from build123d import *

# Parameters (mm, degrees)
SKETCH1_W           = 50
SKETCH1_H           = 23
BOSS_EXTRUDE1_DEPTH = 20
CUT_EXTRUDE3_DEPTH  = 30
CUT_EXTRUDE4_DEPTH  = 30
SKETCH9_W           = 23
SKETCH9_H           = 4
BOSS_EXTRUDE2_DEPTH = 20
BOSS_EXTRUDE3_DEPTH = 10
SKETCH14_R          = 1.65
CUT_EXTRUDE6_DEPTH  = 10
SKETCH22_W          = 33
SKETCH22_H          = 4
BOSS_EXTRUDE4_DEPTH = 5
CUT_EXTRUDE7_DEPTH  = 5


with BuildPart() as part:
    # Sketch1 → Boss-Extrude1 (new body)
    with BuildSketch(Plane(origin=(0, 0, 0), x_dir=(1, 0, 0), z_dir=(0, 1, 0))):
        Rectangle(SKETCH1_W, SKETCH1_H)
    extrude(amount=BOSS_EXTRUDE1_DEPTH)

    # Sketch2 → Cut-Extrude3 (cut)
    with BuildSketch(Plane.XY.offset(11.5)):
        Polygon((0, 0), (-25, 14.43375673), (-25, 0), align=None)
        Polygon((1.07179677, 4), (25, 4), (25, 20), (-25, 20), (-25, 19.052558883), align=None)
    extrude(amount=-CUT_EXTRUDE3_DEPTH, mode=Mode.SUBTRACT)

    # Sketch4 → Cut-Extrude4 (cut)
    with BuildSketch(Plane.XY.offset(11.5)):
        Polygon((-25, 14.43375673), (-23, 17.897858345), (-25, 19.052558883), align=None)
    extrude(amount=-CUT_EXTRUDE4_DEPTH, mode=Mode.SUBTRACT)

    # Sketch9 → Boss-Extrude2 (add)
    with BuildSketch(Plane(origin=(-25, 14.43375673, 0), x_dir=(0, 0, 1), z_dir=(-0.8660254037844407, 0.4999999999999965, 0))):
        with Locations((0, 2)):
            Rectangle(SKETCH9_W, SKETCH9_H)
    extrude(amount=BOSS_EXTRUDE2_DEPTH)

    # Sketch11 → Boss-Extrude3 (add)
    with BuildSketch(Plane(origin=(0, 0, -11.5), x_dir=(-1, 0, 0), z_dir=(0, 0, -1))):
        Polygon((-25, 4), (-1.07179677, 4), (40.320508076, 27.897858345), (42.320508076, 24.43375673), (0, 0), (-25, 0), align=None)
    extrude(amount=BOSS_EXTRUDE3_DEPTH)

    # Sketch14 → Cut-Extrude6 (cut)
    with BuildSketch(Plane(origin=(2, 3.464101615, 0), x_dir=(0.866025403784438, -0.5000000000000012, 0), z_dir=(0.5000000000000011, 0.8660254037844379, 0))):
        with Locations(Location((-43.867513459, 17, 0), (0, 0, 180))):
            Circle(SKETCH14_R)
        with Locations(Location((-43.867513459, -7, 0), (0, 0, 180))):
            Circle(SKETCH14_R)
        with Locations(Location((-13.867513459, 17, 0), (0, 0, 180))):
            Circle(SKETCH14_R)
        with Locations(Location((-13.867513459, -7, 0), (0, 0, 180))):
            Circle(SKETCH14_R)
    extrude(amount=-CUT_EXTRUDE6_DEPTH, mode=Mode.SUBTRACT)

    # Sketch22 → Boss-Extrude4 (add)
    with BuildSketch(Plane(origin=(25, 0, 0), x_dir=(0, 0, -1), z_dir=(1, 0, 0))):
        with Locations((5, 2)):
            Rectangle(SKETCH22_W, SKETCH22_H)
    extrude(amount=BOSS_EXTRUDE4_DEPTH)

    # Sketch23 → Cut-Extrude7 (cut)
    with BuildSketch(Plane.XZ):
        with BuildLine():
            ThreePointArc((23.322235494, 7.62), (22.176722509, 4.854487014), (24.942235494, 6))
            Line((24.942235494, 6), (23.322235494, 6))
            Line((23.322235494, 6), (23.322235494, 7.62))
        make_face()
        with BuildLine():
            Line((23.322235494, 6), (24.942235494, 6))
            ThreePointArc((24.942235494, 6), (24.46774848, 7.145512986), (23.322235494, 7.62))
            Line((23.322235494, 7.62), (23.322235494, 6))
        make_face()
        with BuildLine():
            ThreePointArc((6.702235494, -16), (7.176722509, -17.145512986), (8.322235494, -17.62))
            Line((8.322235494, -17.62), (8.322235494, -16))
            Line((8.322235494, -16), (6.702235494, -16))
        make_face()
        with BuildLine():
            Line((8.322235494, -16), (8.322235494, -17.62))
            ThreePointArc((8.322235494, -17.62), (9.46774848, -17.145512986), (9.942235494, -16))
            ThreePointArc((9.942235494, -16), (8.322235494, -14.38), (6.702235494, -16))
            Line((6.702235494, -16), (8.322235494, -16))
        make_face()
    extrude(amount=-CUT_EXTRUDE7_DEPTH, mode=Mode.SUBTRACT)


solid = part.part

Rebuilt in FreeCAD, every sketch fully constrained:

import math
import FreeCAD as App
import Part
import Sketcher

V = App.Vector
Q = App.Units.Quantity


def add_polygon(sketch, points):
    """Adds a closed chain of lines whose ends are joined by coincident constraints."""
    first, n = sketch.GeometryCount, len(points)
    for a, b in zip(points, points[1:] + points[:1]):
        sketch.addGeometry(Part.LineSegment(App.Vector(*a, 0), App.Vector(*b, 0)), False)
    for i in range(n):
        sketch.addConstraint(Sketcher.Constraint("Coincident", first + i, 2, first + (i + 1) % n, 1))

doc = App.newDocument("Part")
body = doc.addObject("PartDesign::Body", "Body")

# Sketch on XZ plane
sketch1 = body.newObject("Sketcher::SketchObject", "Sketch")
sketch1.AttachmentSupport = (doc.getObject("XZ_Plane"), [""])
sketch1.MapMode = "FlatFace"
add_polygon(sketch1, [(-25, -12), (-25, 12), (25, 12), (25, -12)])  # lines 0-3
sketch1.addConstraint(Sketcher.Constraint("Vertical", 0))
sketch1.addConstraint(Sketcher.Constraint("Horizontal", 1))
sketch1.addConstraint(Sketcher.Constraint("Vertical", 2))
sketch1.addConstraint(Sketcher.Constraint("Horizontal", 3))
sketch1.addConstraint(Sketcher.Constraint("Symmetric", 0, 2, 2, 2, -1, 1))
sketch1.addConstraint(Sketcher.Constraint("DistanceX", 1, 1, 1, 2, Q("50 mm")))
sketch1.addConstraint(Sketcher.Constraint("DistanceY", 0, 1, 0, 2, Q("23 mm")))
pad1 = body.newObject("PartDesign::Pad", "Pad")
pad1.Profile = sketch1
pad1.Length = 20
pad1.Reversed = True

# Sketch on XY plane
sketch2 = body.newObject("Sketcher::SketchObject", "Sketch001")
sketch2.AttachmentSupport = (doc.getObject("XY_Plane"), [""])
sketch2.MapMode = "FlatFace"
sketch2.AttachmentOffset = App.Placement(V(0, 0, 11.5), App.Rotation())
add_polygon(sketch2, [(0, 0), (-25, 14.4), (-25, 0)])  # lines 0-2
add_polygon(sketch2, [(1.1, 4), (25, 4), (25, 20), (-25, 20), (-25, 19.1)])  # lines 3-7
sketch2.addConstraint(Sketcher.Constraint("Vertical", 1))
sketch2.addConstraint(Sketcher.Constraint("Horizontal", 2))
sketch2.addConstraint(Sketcher.Constraint("Horizontal", 3))
sketch2.addConstraint(Sketcher.Constraint("Vertical", 4))
sketch2.addConstraint(Sketcher.Constraint("Horizontal", 5))
sketch2.addConstraint(Sketcher.Constraint("Vertical", 6))
sketch2.addConstraint(Sketcher.Constraint("Coincident", 2, 2, -1, 1))
sketch2.addConstraint(Sketcher.Constraint("Parallel", 0, 7))
sketch2.addConstraint(Sketcher.Constraint("Vertical", 1, 2, 5, 2))
sketch2.addConstraint(Sketcher.Constraint("DistanceX", 2, 1, 2, 2, Q("25 mm")))
sketch2.addConstraint(Sketcher.Constraint("DistanceX", 5, 2, 5, 1, Q("50 mm")))
sketch2.addConstraint(Sketcher.Constraint("DistanceY", 4, 1, 4, 2, Q("16 mm")))
sketch2.addConstraint(Sketcher.Constraint("Angle", 0, Q("150 deg")))
sketch2.addConstraint(Sketcher.Constraint("DistanceY", -1, 1, 3, 2, Q("4 mm")))
sketch2.addConstraint(Sketcher.Constraint("DistanceY", 6, 2, 6, 1, Q("0.947441 mm")))
pocket1 = body.newObject("PartDesign::Pocket", "Pocket")
pocket1.Profile = sketch2
pocket1.Length = 30

# Sketch on XY plane
sketch3 = body.newObject("Sketcher::SketchObject", "Sketch002")
sketch3.AttachmentSupport = (doc.getObject("XY_Plane"), [""])
sketch3.MapMode = "FlatFace"
sketch3.AttachmentOffset = App.Placement(V(0, 0, 11.5), App.Rotation())
add_polygon(sketch3, [(-25, 14.4), (-23, 17.9), (-25, 19.1)])  # lines 0-2
sketch3.addConstraint(Sketcher.Constraint("Vertical", 2))
sketch3.addConstraint(Sketcher.Constraint("Perpendicular", 0, 1))
sketch3.addConstraint(Sketcher.Constraint("Angle", 0, Q("60 deg")))
sketch3.addConstraint(Sketcher.Constraint("Distance", 0, Q("4 mm")))
sketch3.addConstraint(Sketcher.Constraint("DistanceX", 0, 2, -1, 1, Q("23 mm")))
sketch3.addConstraint(Sketcher.Constraint("DistanceY", -1, 1, 0, 2, Q("17.897858 mm")))
pocket2 = body.newObject("PartDesign::Pocket", "Pocket001")
pocket2.Profile = sketch3
pocket2.Length = 30

# Sketch on an angled plane
sketch4 = body.newObject("Sketcher::SketchObject", "Sketch003")
sketch4.Placement = App.Placement(V(-25, 14.433757, 0), App.Rotation(V(0, 0, 1), V(0.5, 0.866025404, 0), V(-0.866025404, 0.5, 0), "ZXY"))
add_polygon(sketch4, [(-11.5, 4), (-11.5, 0), (11.5, 0), (11.5, 4)])  # lines 0-3
sketch4.addConstraint(Sketcher.Constraint("Vertical", 0))
sketch4.addConstraint(Sketcher.Constraint("Horizontal", 1))
sketch4.addConstraint(Sketcher.Constraint("Vertical", 2))
sketch4.addConstraint(Sketcher.Constraint("Horizontal", 3))
sketch4.addConstraint(Sketcher.Constraint("Symmetric", 0, 2, 1, 2, -1, 1))
sketch4.addConstraint(Sketcher.Constraint("DistanceX", 1, 1, 1, 2, Q("23 mm")))
sketch4.addConstraint(Sketcher.Constraint("DistanceY", 0, 2, 0, 1, Q("4 mm")))
pad2 = body.newObject("PartDesign::Pad", "Pad001")
pad2.Profile = sketch4
pad2.Length = 20

# Sketch on XY plane
sketch5 = body.newObject("Sketcher::SketchObject", "Sketch004")
sketch5.AttachmentSupport = (doc.getObject("XY_Plane"), [""])
sketch5.MapMode = "FlatFace"
sketch5.AttachmentOffset = App.Placement(V(0, 0, -11.5), App.Rotation())
add_polygon(sketch5, [(1.1, 4), (25, 4), (25, 0), (0, 0), (-42.3, 24.4), (-40.3, 27.9)])  # lines 0-5
sketch5.addConstraint(Sketcher.Constraint("Horizontal", 0))
sketch5.addConstraint(Sketcher.Constraint("Vertical", 1))
sketch5.addConstraint(Sketcher.Constraint("Horizontal", 2))
sketch5.addConstraint(Sketcher.Constraint("Coincident", 2, 2, -1, 1))
sketch5.addConstraint(Sketcher.Constraint("Perpendicular", 3, 4))
sketch5.addConstraint(Sketcher.Constraint("Perpendicular", 4, 5))
sketch5.addConstraint(Sketcher.Constraint("DistanceX", 2, 2, 2, 1, Q("25 mm")))
sketch5.addConstraint(Sketcher.Constraint("DistanceY", 1, 2, 1, 1, Q("4 mm")))
sketch5.addConstraint(Sketcher.Constraint("Angle", 3, Q("150 deg")))
sketch5.addConstraint(Sketcher.Constraint("Distance", 4, Q("4 mm")))
sketch5.addConstraint(Sketcher.Constraint("DistanceX", 3, 2, -1, 1, Q("42.320508 mm")))
pad3 = body.newObject("PartDesign::Pad", "Pad002")
pad3.Profile = sketch5
pad3.Length = 10
pad3.Reversed = True

# Sketch on an angled plane
sketch6 = body.newObject("Sketcher::SketchObject", "Sketch005")
sketch6.Placement = App.Placement(V(2, 3.464102, 0), App.Rotation(V(0.866025404, -0.5, 0), V(0, 0, -1), V(0.5, 0.866025404, 0), "ZXY"))
sketch6.addGeometry(Part.Circle(V(-43.9, 17, 0), V(0, 0, 1), 1.6), False)
sketch6.addGeometry(Part.Circle(V(-43.9, -7, 0), V(0, 0, 1), 1.6), False)
sketch6.addGeometry(Part.Circle(V(-13.9, 17, 0), V(0, 0, 1), 1.6), False)
sketch6.addGeometry(Part.Circle(V(-13.9, -7, 0), V(0, 0, 1), 1.6), False)
sketch6.addConstraint(Sketcher.Constraint("Equal", 0, 1))
sketch6.addConstraint(Sketcher.Constraint("Equal", 1, 2))
sketch6.addConstraint(Sketcher.Constraint("Equal", 2, 3))
sketch6.addConstraint(Sketcher.Constraint("Horizontal", 0, 3, 2, 3))
sketch6.addConstraint(Sketcher.Constraint("Horizontal", 1, 3, 3, 3))
sketch6.addConstraint(Sketcher.Constraint("Vertical", 0, 3, 1, 3))
sketch6.addConstraint(Sketcher.Constraint("Vertical", 2, 3, 3, 3))
sketch6.addConstraint(Sketcher.Constraint("Diameter", 0, Q("3.3 mm")))
sketch6.addConstraint(Sketcher.Constraint("DistanceY", -1, 1, 0, 3, Q("17 mm")))
sketch6.addConstraint(Sketcher.Constraint("DistanceY", 1, 3, -1, 1, Q("7 mm")))
sketch6.addConstraint(Sketcher.Constraint("DistanceX", 0, 3, 2, 3, Q("30 mm")))
sketch6.addConstraint(Sketcher.Constraint("DistanceX", 0, 3, -1, 1, Q("43.867513 mm")))
pocket3 = body.newObject("PartDesign::Pocket", "Pocket002")
pocket3.Profile = sketch6
pocket3.Length = 10

# Sketch on YZ plane
sketch7 = body.newObject("Sketcher::SketchObject", "Sketch006")
sketch7.AttachmentSupport = (doc.getObject("YZ_Plane"), [""])
sketch7.MapMode = "FlatFace"
sketch7.AttachmentOffset = App.Placement(V(0, 0, 25), App.Rotation())
add_polygon(sketch7, [(4, 11.5), (0, 11.5), (0, -21.5), (4, -21.5)])  # lines 0-3
sketch7.addConstraint(Sketcher.Constraint("Horizontal", 0))
sketch7.addConstraint(Sketcher.Constraint("Vertical", 1))
sketch7.addConstraint(Sketcher.Constraint("Horizontal", 2))
sketch7.addConstraint(Sketcher.Constraint("Vertical", 3))
sketch7.addConstraint(Sketcher.Constraint("PointOnObject", 0, 2, -2))
sketch7.addConstraint(Sketcher.Constraint("DistanceX", 0, 2, 0, 1, Q("4 mm")))
sketch7.addConstraint(Sketcher.Constraint("DistanceY", 1, 2, 1, 1, Q("33 mm")))
sketch7.addConstraint(Sketcher.Constraint("DistanceY", -1, 1, 0, 2, Q("11.5 mm")))
pad4 = body.newObject("PartDesign::Pad", "Pad003")
pad4.Profile = sketch7
pad4.Length = 5

# Sketch on XZ plane
sketch8 = body.newObject("Sketcher::SketchObject", "Sketch007")
sketch8.AttachmentSupport = (doc.getObject("XZ_Plane"), [""])
sketch8.MapMode = "FlatFace"
sketch8.addGeometry(Part.ArcOfCircle(Part.Circle(V(23.3, 6, 0), V(0, 0, 1), 1.6), math.radians(90), math.radians(360)), False)
sketch8.addGeometry(Part.ArcOfCircle(Part.Circle(V(23.3, 6, 0), V(0, 0, 1), 1.6), math.radians(0), math.radians(90)), False)
sketch8.addGeometry(Part.ArcOfCircle(Part.Circle(V(8.3, -16, 0), V(0, 0, 1), 1.6), math.radians(180), math.radians(270)), False)
sketch8.addGeometry(Part.ArcOfCircle(Part.Circle(V(8.3, -16, 0), V(0, 0, 1), 1.6), math.radians(-90), math.radians(0)), False)
sketch8.addGeometry(Part.ArcOfCircle(Part.Circle(V(8.3, -16, 0), V(0, 0, 1), 1.6), math.radians(0), math.radians(180)), False)
sketch8.addConstraint(Sketcher.Constraint("Tangent", 0, 1, 1, 2))
sketch8.addConstraint(Sketcher.Constraint("Coincident", 1, 1, 0, 2))
sketch8.addConstraint(Sketcher.Constraint("Tangent", 2, 2, 3, 1))
sketch8.addConstraint(Sketcher.Constraint("Tangent", 3, 2, 4, 1))
sketch8.addConstraint(Sketcher.Constraint("Tangent", 4, 2, 2, 1))
sketch8.addConstraint(Sketcher.Constraint("Equal", 1, 2))
sketch8.addConstraint(Sketcher.Constraint("Horizontal", 0, 3, 1, 1))
sketch8.addConstraint(Sketcher.Constraint("Horizontal", 4, 3, 3, 2))
sketch8.addConstraint(Sketcher.Constraint("Horizontal", 3, 2, 4, 2))
sketch8.addConstraint(Sketcher.Constraint("Vertical", 1, 3, 0, 1))
sketch8.addConstraint(Sketcher.Constraint("Vertical", 4, 3, 2, 2))
sketch8.addConstraint(Sketcher.Constraint("Radius", 0, Q("1.62 mm")))
sketch8.addConstraint(Sketcher.Constraint("DistanceY", -1, 1, 0, 3, Q("6 mm")))
sketch8.addConstraint(Sketcher.Constraint("DistanceY", 2, 3, -1, 1, Q("16 mm")))
sketch8.addConstraint(Sketcher.Constraint("DistanceX", 2, 3, 0, 3, Q("15 mm")))
sketch8.addConstraint(Sketcher.Constraint("DistanceX", -1, 1, 0, 3, Q("23.322235 mm")))
pocket4 = body.newObject("PartDesign::Pocket", "Pocket003")
pocket4.Profile = sketch8
pocket4.Length = 5

doc.recompute()
